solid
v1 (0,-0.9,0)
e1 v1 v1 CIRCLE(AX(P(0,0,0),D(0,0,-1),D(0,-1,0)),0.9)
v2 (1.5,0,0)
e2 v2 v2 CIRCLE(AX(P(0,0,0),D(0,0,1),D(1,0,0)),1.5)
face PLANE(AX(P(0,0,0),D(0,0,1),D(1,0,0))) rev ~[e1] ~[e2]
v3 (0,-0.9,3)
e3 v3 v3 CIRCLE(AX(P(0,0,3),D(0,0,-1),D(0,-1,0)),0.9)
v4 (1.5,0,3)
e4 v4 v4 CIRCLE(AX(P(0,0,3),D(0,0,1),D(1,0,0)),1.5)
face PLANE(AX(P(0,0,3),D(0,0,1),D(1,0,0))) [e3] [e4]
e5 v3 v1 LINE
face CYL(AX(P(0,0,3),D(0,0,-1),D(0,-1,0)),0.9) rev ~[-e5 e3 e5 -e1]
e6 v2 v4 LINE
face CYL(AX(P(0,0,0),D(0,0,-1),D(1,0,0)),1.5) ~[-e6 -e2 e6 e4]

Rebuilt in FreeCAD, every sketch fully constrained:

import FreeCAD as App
import Part
import Sketcher
from FreeCAD import Vector
Q = App.Units.Quantity

doc = App.newDocument("Part")
body = doc.addObject("PartDesign::Body", "Body")

# Sketch on XY plane
sketch1 = body.newObject("Sketcher::SketchObject", "Sketch")
sketch1.AttachmentSupport = (doc.getObject("XY_Plane"), [""])
sketch1.MapMode = "FlatFace"
sketch1.addGeometry(Part.Circle(Vector(0, 0, 0), Vector(0, 0, 1), 1.5), False)
sketch1.addConstraint([
    Sketcher.Constraint("Coincident", 0, 3, -1, 1),
    Sketcher.Constraint("Diameter", 0, Q("3 mm")),
])
pad1 = body.newObject("PartDesign::Pad", "Pad")
pad1.Profile = sketch1
pad1.Length = 3

# Sketch on XY plane
sketch2 = body.newObject("Sketcher::SketchObject", "Sketch001")
sketch2.AttachmentSupport = (doc.getObject("XY_Plane"), [""])
sketch2.MapMode = "FlatFace"
sketch2.AttachmentOffset = App.Placement(Vector(0, 0, 3), App.Rotation())
sketch2.addGeometry(Part.Circle(Vector(0, 0, 0), Vector(0, 0, 1), 0.9), False)
sketch2.addConstraint([
    Sketcher.Constraint("Coincident", 0, 3, -1, 1),
    Sketcher.Constraint("Diameter", 0, Q("1.8 mm")),
])
doc.recompute()
hole = body.newObject("PartDesign::Hole", "Hole")
hole.Profile = sketch2
hole.ThreadType = "None"
hole.Diameter = 1.8
hole.DepthType = "Dimension"
hole.Depth = 8.8
hole.DrillPoint = "Angled"
hole.DrillPointAngle = 118

doc.recompute()
